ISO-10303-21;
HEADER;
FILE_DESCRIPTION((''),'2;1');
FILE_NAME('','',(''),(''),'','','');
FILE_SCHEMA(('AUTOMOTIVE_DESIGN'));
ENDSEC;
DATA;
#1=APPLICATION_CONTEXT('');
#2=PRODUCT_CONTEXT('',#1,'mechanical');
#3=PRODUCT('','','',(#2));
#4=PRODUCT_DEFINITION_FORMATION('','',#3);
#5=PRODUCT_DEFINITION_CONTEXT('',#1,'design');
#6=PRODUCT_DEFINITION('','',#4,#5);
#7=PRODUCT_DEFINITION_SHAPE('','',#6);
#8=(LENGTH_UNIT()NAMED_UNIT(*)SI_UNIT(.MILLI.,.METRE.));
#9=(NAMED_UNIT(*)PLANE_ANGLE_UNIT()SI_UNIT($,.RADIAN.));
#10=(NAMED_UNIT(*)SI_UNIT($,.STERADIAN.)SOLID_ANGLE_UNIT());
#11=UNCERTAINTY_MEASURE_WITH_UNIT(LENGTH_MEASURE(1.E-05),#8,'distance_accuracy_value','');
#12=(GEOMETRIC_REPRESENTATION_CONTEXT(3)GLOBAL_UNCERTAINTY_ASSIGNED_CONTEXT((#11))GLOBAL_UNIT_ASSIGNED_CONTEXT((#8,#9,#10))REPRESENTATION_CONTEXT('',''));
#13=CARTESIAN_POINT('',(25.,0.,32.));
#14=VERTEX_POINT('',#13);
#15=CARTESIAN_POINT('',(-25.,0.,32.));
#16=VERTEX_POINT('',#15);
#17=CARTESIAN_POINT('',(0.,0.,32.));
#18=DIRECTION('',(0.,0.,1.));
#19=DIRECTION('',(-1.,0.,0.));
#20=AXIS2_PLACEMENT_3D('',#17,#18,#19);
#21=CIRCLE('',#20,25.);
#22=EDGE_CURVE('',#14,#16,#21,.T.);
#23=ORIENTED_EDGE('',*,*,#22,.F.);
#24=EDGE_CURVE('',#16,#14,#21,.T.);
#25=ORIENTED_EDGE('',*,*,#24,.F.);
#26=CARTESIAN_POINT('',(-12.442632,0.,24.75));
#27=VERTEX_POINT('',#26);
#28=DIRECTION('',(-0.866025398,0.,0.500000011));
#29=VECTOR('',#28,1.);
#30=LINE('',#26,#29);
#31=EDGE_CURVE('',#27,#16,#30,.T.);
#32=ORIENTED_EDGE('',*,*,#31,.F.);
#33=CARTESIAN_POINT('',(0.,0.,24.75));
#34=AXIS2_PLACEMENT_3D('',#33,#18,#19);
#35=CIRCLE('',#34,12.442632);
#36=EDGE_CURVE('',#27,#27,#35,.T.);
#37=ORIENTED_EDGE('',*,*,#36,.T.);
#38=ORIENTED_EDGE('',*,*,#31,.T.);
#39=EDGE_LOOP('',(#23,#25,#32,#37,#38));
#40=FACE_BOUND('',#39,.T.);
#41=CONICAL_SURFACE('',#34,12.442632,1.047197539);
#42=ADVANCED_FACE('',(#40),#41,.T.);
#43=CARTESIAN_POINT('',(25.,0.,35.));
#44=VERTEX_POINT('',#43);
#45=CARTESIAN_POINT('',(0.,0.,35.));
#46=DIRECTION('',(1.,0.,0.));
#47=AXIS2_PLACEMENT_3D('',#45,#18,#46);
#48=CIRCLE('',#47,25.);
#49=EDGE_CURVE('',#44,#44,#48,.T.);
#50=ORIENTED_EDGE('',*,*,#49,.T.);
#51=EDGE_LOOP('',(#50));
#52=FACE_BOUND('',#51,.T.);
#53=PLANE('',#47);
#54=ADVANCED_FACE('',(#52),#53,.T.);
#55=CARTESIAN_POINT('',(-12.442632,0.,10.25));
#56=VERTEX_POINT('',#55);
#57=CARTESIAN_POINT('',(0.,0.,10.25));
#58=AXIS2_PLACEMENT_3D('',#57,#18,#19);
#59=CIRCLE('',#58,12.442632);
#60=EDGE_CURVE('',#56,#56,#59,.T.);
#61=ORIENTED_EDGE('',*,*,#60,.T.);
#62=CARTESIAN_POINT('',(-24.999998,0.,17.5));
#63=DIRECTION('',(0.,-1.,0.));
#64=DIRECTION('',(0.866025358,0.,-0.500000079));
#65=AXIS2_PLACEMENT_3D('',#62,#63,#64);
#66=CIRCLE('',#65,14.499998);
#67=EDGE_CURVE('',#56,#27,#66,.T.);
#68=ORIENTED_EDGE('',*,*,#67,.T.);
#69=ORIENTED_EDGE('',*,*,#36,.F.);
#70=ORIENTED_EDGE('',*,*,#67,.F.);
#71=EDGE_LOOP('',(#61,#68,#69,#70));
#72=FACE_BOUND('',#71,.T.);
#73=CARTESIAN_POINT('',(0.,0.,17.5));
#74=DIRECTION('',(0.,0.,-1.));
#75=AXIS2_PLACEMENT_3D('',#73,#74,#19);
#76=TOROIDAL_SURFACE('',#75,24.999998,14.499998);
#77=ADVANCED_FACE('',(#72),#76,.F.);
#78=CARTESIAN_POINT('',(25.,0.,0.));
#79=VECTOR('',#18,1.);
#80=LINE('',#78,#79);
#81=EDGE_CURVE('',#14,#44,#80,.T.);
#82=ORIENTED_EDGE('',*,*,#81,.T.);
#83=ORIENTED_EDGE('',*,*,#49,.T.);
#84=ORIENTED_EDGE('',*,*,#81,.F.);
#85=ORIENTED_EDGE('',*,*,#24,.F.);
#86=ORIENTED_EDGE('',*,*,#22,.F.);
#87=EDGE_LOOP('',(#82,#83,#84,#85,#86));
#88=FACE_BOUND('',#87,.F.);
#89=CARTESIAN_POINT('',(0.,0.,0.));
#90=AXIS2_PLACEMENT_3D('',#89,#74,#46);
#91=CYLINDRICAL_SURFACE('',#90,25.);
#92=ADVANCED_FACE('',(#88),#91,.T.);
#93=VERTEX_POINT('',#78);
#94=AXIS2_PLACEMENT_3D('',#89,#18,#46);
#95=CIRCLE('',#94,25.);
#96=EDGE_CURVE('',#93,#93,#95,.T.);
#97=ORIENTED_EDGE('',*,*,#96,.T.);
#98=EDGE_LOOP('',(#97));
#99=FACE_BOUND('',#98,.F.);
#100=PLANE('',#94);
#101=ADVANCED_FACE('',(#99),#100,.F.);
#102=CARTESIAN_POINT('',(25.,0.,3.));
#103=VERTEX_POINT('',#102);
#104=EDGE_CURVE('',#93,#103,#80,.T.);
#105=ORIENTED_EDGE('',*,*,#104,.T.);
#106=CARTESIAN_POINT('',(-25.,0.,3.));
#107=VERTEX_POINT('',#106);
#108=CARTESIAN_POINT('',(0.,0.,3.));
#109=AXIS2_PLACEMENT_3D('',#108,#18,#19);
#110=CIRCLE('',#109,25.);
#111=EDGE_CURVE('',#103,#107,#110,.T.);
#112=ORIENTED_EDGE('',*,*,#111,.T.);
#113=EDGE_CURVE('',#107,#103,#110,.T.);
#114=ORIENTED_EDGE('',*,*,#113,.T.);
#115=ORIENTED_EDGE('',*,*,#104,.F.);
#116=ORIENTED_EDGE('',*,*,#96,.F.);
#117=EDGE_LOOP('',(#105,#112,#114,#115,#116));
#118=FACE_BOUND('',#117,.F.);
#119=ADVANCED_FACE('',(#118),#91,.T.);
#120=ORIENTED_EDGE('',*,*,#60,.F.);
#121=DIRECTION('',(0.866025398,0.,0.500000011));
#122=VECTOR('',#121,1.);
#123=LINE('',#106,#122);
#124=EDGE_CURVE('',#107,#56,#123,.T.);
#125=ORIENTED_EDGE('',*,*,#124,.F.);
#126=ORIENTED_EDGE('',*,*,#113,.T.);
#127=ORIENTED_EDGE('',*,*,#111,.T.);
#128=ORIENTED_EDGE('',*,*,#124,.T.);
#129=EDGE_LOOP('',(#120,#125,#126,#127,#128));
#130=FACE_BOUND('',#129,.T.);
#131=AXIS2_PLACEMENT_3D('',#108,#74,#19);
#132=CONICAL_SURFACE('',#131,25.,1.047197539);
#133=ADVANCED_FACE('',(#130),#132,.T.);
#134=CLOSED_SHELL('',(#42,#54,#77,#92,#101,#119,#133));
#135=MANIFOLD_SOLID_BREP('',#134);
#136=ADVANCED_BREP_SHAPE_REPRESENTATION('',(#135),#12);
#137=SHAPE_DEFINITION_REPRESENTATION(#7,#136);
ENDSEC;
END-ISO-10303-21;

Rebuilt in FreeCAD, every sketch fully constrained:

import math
import FreeCAD as App
import Part
import Sketcher

V = App.Vector
Q = App.Units.Quantity

doc = App.newDocument("Part")
params = doc.addObject("Spreadsheet::Sheet", "Params")
for row, (alias, value) in enumerate([
    ("sketch1_diameter", "50 mm"),
    ("pad1_length", "35 mm"),
    ("sketch2_height", "29 mm"),
    ("sketch2_length", "14.5 mm"),
    ("groove_angle", "360 deg"),
], start=1):
    params.set(f"A{row}", alias)
    params.set(f"B{row}", "=" + value)
    params.setAlias(f"B{row}", alias)

body = doc.addObject("PartDesign::Body", "Body")

# Sketch on XY plane
sketch1 = doc.addObject("Sketcher::SketchObject", "Sketch")
body.addObject(sketch1)
sketch1.AttachmentSupport = (doc.XY_Plane, [""])
sketch1.MapMode = "FlatFace"
sketch1.addGeometry(Part.Circle(V(0, 0, 0), V(0, 0, 1), 25), False)
sketch1.addConstraint([
    Sketcher.Constraint("Coincident", 0, 3, -1, 1),
    Sketcher.Constraint("Diameter", 0, Q("50 mm")),
])
sketch1.setExpression("Constraints[1]", "Params.sketch1_diameter")
pad1 = doc.addObject("PartDesign::Pad", "Pad")
body.addObject(pad1)
pad1.Profile = sketch1
pad1.setExpression("Length", "Params.pad1_length")

# Sketch on XZ plane
sketch2 = doc.addObject("Sketcher::SketchObject", "Sketch001")
body.addObject(sketch2)
sketch2.AttachmentSupport = (doc.XZ_Plane, [""])
sketch2.MapMode = "FlatFace"
sketch2.addGeometry([
    Part.LineSegment(V(-12.442632, 24.75, 0), V(-25, 32, 0)),
    Part.LineSegment(V(-25, 32, 0), V(-25, 3, 0)),
    Part.LineSegment(V(-25, 3, 0), V(-12.442632, 10.25, 0)),
    Part.ArcOfCircle(Part.Circle(V(-24.999998, 17.5, 0), V(0, 0, 1), 14.499998), math.radians(-30.000005), math.radians(30.000005)),
], False)
sketch2.addConstraint([
    Sketcher.Constraint("Coincident", 0, 2, 1, 1),
    Sketcher.Constraint("Coincident", 1, 2, 2, 1),
    Sketcher.Constraint("Coincident", 2, 2, 3, 1),
    Sketcher.Constraint("Coincident", 3, 2, 0, 1),
    Sketcher.Constraint("Vertical", 1),
    Sketcher.Constraint("Vertical", 2, 2, 3, 2),
    Sketcher.Constraint("Equal", 0, 2),
    Sketcher.Constraint("DistanceY", 1, 2, 1, 1, Q("29 mm")),
    Sketcher.Constraint("Angle", 0, Q("149.999999 deg")),
    Sketcher.Constraint("DistanceX", 0, 2, -1, 1, Q("25 mm")),
    Sketcher.Constraint("DistanceY", -1, 1, 0, 2, Q("32 mm")),
    Sketcher.Constraint("Distance", 0, Q("14.5 mm")),
    Sketcher.Constraint("Radius", 3, Q("14.499998 mm")),
])
sketch2.setExpression("Constraints[7]", "Params.sketch2_height")
sketch2.setExpression("Constraints[11]", "Params.sketch2_length")
groove = doc.addObject("PartDesign::Groove", "Groove")
body.addObject(groove)
groove.Profile = sketch2
groove.ReferenceAxis = (sketch2, ["V_Axis"])
groove.setExpression("Angle", "Params.groove_angle")

doc.recompute()
